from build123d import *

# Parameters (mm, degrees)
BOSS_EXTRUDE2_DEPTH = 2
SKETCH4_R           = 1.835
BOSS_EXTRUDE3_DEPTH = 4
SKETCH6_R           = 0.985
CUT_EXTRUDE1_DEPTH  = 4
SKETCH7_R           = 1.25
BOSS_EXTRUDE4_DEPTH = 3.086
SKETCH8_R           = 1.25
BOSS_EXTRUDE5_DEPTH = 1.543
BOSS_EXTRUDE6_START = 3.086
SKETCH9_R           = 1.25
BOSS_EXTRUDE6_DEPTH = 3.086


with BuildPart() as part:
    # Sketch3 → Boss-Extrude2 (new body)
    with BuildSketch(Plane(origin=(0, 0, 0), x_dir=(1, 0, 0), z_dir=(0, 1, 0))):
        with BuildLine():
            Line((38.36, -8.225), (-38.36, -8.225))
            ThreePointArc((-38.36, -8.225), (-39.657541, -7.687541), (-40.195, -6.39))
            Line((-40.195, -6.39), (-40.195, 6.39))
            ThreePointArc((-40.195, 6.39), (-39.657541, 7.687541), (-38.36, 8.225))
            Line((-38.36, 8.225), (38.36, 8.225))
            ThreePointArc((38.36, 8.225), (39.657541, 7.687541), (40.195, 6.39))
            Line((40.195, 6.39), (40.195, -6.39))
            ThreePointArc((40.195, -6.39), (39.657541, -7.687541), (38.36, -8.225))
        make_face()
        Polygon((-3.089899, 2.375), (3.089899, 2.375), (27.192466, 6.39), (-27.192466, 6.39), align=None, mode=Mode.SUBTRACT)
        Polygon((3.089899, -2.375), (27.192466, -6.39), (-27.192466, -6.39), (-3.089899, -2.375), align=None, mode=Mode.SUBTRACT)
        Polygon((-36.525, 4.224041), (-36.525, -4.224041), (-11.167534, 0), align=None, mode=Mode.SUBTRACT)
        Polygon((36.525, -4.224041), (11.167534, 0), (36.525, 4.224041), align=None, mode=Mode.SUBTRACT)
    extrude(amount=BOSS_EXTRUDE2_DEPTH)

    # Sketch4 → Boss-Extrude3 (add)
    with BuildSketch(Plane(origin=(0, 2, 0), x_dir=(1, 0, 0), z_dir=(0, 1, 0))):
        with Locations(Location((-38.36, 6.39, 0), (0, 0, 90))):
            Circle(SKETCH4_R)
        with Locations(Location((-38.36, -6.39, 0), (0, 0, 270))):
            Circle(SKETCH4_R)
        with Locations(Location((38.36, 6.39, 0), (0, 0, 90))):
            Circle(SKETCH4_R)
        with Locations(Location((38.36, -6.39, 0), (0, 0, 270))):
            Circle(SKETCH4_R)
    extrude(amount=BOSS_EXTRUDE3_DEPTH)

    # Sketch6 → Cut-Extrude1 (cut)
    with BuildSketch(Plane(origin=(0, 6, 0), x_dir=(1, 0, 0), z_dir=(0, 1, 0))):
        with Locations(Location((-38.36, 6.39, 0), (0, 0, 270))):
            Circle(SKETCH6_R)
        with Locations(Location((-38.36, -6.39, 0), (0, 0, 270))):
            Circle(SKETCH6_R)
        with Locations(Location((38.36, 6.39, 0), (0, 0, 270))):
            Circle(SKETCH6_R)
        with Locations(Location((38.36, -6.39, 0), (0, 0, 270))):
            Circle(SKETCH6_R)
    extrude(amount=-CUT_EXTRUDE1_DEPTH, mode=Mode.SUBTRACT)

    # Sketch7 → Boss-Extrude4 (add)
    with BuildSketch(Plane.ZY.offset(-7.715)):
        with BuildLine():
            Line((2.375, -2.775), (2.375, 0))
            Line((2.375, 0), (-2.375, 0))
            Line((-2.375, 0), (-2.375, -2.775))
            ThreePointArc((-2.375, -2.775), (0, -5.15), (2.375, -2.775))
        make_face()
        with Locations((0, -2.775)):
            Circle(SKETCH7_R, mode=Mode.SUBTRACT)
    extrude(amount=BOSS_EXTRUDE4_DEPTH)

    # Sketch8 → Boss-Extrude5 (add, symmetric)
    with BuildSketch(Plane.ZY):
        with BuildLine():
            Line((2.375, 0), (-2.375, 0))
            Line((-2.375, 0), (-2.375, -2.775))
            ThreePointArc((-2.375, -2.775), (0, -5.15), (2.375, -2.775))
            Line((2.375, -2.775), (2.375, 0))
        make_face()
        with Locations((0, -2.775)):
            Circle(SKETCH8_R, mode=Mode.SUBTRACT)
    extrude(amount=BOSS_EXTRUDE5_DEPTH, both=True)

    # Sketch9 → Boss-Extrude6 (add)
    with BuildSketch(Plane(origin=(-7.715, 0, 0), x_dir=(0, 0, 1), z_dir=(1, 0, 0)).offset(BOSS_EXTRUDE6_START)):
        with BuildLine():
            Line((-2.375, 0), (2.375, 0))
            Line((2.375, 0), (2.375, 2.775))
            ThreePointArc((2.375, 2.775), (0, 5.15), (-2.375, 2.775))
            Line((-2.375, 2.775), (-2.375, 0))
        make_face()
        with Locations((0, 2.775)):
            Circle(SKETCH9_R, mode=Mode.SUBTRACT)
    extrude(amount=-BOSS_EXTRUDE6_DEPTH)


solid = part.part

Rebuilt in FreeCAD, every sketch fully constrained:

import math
import FreeCAD as App
import Part
import Sketcher

V = App.Vector
Q = App.Units.Quantity

doc = App.newDocument("Part")
body = doc.addObject("PartDesign::Body", "Body")

sketch1 = doc.addObject("Sketcher::SketchObject", "Sketch")
body.addObject(sketch1)
sketch1.AttachmentSupport = (doc.XZ_Plane, [""])
sketch1.MapMode = "FlatFace"
sketch1.addGeometry(Part.LineSegment(V(-38.4, 8.2, 0), V(38.4, 8.2, 0)), False)
sketch1.addGeometry(Part.ArcOfCircle(Part.Circle(V(38.4, 6.4, 0), V(0, 0, 1), 1.8), math.radians(0), math.radians(90)), False)
sketch1.addGeometry(Part.LineSegment(V(40.2, 6.4, 0), V(40.2, -6.4, 0)), False)
sketch1.addGeometry(Part.ArcOfCircle(Part.Circle(V(38.4, -6.4, 0), V(0, 0, 1), 1.8), math.radians(-90), math.radians(0)), False)
sketch1.addGeometry(Part.LineSegment(V(38.4, -8.2, 0), V(-38.4, -8.2, 0)), False)
sketch1.addGeometry(Part.ArcOfCircle(Part.Circle(V(-38.4, -6.4, 0), V(0, 0, 1), 1.8), math.radians(180), math.radians(270)), False)
sketch1.addGeometry(Part.LineSegment(V(-40.2, -6.4, 0), V(-40.2, 6.4, 0)), False)
sketch1.addGeometry(Part.ArcOfCircle(Part.Circle(V(-38.4, 6.4, 0), V(0, 0, 1), 1.8), math.radians(90), math.radians(180)), False)
sketch1.addGeometry(Part.LineSegment(V(3.1, 2.4, 0), V(27.2, 6.4, 0)), False)
sketch1.addGeometry(Part.LineSegment(V(27.2, 6.4, 0), V(-27.2, 6.4, 0)), False)
sketch1.addGeometry(Part.LineSegment(V(-27.2, 6.4, 0), V(-3.1, 2.4, 0)), False)
sketch1.addGeometry(Part.LineSegment(V(-3.1, 2.4, 0), V(3.1, 2.4, 0)), False)
sketch1.addGeometry(Part.LineSegment(V(36.5, 4.2, 0), V(11.2, 0, 0)), False)
sketch1.addGeometry(Part.LineSegment(V(11.2, 0, 0), V(36.5, -4.2, 0)), False)
sketch1.addGeometry(Part.LineSegment(V(36.5, -4.2, 0), V(36.5, 4.2, 0)), False)
sketch1.addGeometry(Part.LineSegment(V(-36.5, -4.2, 0), V(-11.2, 0, 0)), False)
sketch1.addGeometry(Part.LineSegment(V(-11.2, 0, 0), V(-36.5, 4.2, 0)), False)
sketch1.addGeometry(Part.LineSegment(V(-36.5, 4.2, 0), V(-36.5, -4.2, 0)), False)
sketch1.addGeometry(Part.LineSegment(V(-3.1, -2.4, 0), V(-27.2, -6.4, 0)), False)
sketch1.addGeometry(Part.LineSegment(V(-27.2, -6.4, 0), V(27.2, -6.4, 0)), False)
sketch1.addGeometry(Part.LineSegment(V(27.2, -6.4, 0), V(3.1, -2.4, 0)), False)
sketch1.addGeometry(Part.LineSegment(V(3.1, -2.4, 0), V(-3.1, -2.4, 0)), False)
sketch1.addConstraint(Sketcher.Constraint("Tangent", 0, 2, 1, 2))
sketch1.addConstraint(Sketcher.Constraint("Tangent", 1, 1, 2, 1))
sketch1.addConstraint(Sketcher.Constraint("Tangent", 2, 2, 3, 2))
sketch1.addConstraint(Sketcher.Constraint("Tangent", 3, 1, 4, 1))
sketch1.addConstraint(Sketcher.Constraint("Tangent", 4, 2, 5, 2))
sketch1.addConstraint(Sketcher.Constraint("Tangent", 5, 1, 6, 1))
sketch1.addConstraint(Sketcher.Constraint("Tangent", 6, 2, 7, 2))
sketch1.addConstraint(Sketcher.Constraint("Tangent", 7, 1, 0, 1))
sketch1.addConstraint(Sketcher.Constraint("Coincident", 8, 2, 9, 1))
sketch1.addConstraint(Sketcher.Constraint("Coincident", 9, 2, 10, 1))
sketch1.addConstraint(Sketcher.Constraint("Coincident", 10, 2, 11, 1))
sketch1.addConstraint(Sketcher.Constraint("Coincident", 11, 2, 8, 1))
sketch1.addConstraint(Sketcher.Constraint("Coincident", 12, 2, 13, 1))
sketch1.addConstraint(Sketcher.Constraint("Coincident", 13, 2, 14, 1))
sketch1.addConstraint(Sketcher.Constraint("Coincident", 14, 2, 12, 1))
sketch1.addConstraint(Sketcher.Constraint("Coincident", 15, 2, 16, 1))
sketch1.addConstraint(Sketcher.Constraint("Coincident", 16, 2, 17, 1))
sketch1.addConstraint(Sketcher.Constraint("Coincident", 17, 2, 15, 1))
sketch1.addConstraint(Sketcher.Constraint("Coincident", 18, 2, 19, 1))
sketch1.addConstraint(Sketcher.Constraint("Coincident", 19, 2, 20, 1))
sketch1.addConstraint(Sketcher.Constraint("Coincident", 20, 2, 21, 1))
sketch1.addConstraint(Sketcher.Constraint("Coincident", 21, 2, 18, 1))
sketch1.addConstraint(Sketcher.Constraint("Horizontal", 0))
sketch1.addConstraint(Sketcher.Constraint("Vertical", 2))
sketch1.addConstraint(Sketcher.Constraint("Horizontal", 4))
sketch1.addConstraint(Sketcher.Constraint("Vertical", 6))
sketch1.addConstraint(Sketcher.Constraint("Horizontal", 9))
sketch1.addConstraint(Sketcher.Constraint("Horizontal", 11))
sketch1.addConstraint(Sketcher.Constraint("Vertical", 14))
sketch1.addConstraint(Sketcher.Constraint("Vertical", 17))
sketch1.addConstraint(Sketcher.Constraint("Horizontal", 19))
sketch1.addConstraint(Sketcher.Constraint("Horizontal", 21))
sketch1.addConstraint(Sketcher.Constraint("Equal", 1, 3))
sketch1.addConstraint(Sketcher.Constraint("Equal", 3, 5))
sketch1.addConstraint(Sketcher.Constraint("Equal", 5, 7))
sketch1.addConstraint(Sketcher.Constraint("Symmetric", 1, 3, 5, 3, -1, 1))
sketch1.addConstraint(Sketcher.Constraint("Symmetric", 12, 2, 15, 2, -1, 1))
sketch1.addConstraint(Sketcher.Constraint("Symmetric", 13, 2, 16, 2, -1, 1))
sketch1.addConstraint(Sketcher.Constraint("Symmetric", 8, 2, 18, 2, -1, 1))
sketch1.addConstraint(Sketcher.Constraint("Symmetric", 10, 2, 20, 2, -1, 1))
sketch1.addConstraint(Sketcher.Constraint("PointOnObject", 12, 2, -1))
sketch1.addConstraint(Sketcher.Constraint("Parallel", 8, 12))
sketch1.addConstraint(Sketcher.Constraint("Parallel", 10, 13))
sketch1.addConstraint(Sketcher.Constraint("Parallel", 12, 15))
sketch1.addConstraint(Sketcher.Constraint("Parallel", 15, 18))
sketch1.addConstraint(Sketcher.Constraint("Parallel", 16, 20))
sketch1.addConstraint(Sketcher.Constraint("Horizontal", 6, 2, 8, 2))
sketch1.addConstraint(Sketcher.Constraint("Horizontal", 14, 2, 16, 2))
sketch1.addConstraint(Sketcher.Constraint("Vertical", 9, 2, 18, 2))
sketch1.addConstraint(Sketcher.Constraint("Radius", 1, Q("1.835 mm")))
sketch1.addConstraint(Sketcher.Constraint("DistanceX", 0, 1, 0, 2, Q("76.72 mm")))
sketch1.addConstraint(Sketcher.Constraint("DistanceY", 2, 2, 2, 1, Q("12.78 mm")))
sketch1.addConstraint(Sketcher.Constraint("DistanceY", 10, 2, 7, 1, Q("5.85 mm")))
sketch1.addConstraint(Sketcher.Constraint("DistanceX", 13, 2, 2, 2, Q("3.67 mm")))
sketch1.addConstraint(Sketcher.Constraint("DistanceX", 10, 2, -1, 1, Q("3.089899 mm")))
sketch1.addConstraint(Sketcher.Constraint("Distance", 12, Q("25.706879 mm")))
sketch1.addConstraint(Sketcher.Constraint("DistanceX", 9, 2, 9, 1, Q("54.384932 mm")))
pad1 = doc.addObject("PartDesign::Pad", "Pad")
body.addObject(pad1)
pad1.Profile = sketch1
pad1.Length = 2
pad1.Reversed = True

sketch2 = doc.addObject("Sketcher::SketchObject", "Sketch001")
body.addObject(sketch2)
sketch2.AttachmentSupport = (doc.XZ_Plane, [""])
sketch2.MapMode = "FlatFace"
sketch2.AttachmentOffset = App.Placement(V(0, 0, -2), App.Rotation())
sketch2.addGeometry(Part.Circle(V(-38.4, -6.4, 0), V(0, 0, 1), 1.8), False)
sketch2.addGeometry(Part.Circle(V(-38.4, 6.4, 0), V(0, 0, 1), 1.8), False)
sketch2.addGeometry(Part.Circle(V(38.4, -6.4, 0), V(0, 0, 1), 1.8), False)
sketch2.addGeometry(Part.Circle(V(38.4, 6.4, 0), V(0, 0, 1), 1.8), False)
sketch2.addConstraint(Sketcher.Constraint("Equal", 0, 1))
sketch2.addConstraint(Sketcher.Constraint("Equal", 1, 2))
sketch2.addConstraint(Sketcher.Constraint("Equal", 2, 3))
sketch2.addConstraint(Sketcher.Constraint("Symmetric", 1, 3, 2, 3, -1, 1))
sketch2.addConstraint(Sketcher.Constraint("Symmetric", 0, 3, 3, 3, -1, 1))
sketch2.addConstraint(Sketcher.Constraint("Symmetric", 0, 3, 2, 3, -2))
sketch2.addConstraint(Sketcher.Constraint("Diameter", 0, Q("3.67 mm")))
sketch2.addConstraint(Sketcher.Constraint("DistanceX", 0, 3, -1, 1, Q("38.36 mm")))
sketch2.addConstraint(Sketcher.Constraint("DistanceY", 0, 3, -1, 1, Q("6.39 mm")))
pad2 = doc.addObject("PartDesign::Pad", "Pad001")
body.addObject(pad2)
pad2.Profile = sketch2
pad2.Length = 4
pad2.Reversed = True

sketch3 = doc.addObject("Sketcher::SketchObject", "Sketch002")
body.addObject(sketch3)
sketch3.AttachmentSupport = (doc.XZ_Plane, [""])
sketch3.MapMode = "FlatFace"
sketch3.AttachmentOffset = App.Placement(V(0, 0, -6), App.Rotation())
sketch3.addGeometry(Part.Circle(V(-38.4, -6.4, 0), V(0, 0, 1), 1), False)
sketch3.addGeometry(Part.Circle(V(-38.4, 6.4, 0), V(0, 0, 1), 1), False)
sketch3.addGeometry(Part.Circle(V(38.4, -6.4, 0), V(0, 0, 1), 1), False)
sketch3.addGeometry(Part.Circle(V(38.4, 6.4, 0), V(0, 0, 1), 1), False)
sketch3.addConstraint(Sketcher.Constraint("Equal", 0, 1))
sketch3.addConstraint(Sketcher.Constraint("Equal", 1, 2))
sketch3.addConstraint(Sketcher.Constraint("Equal", 2, 3))
sketch3.addConstraint(Sketcher.Constraint("Symmetric", 1, 3, 2, 3, -1, 1))
sketch3.addConstraint(Sketcher.Constraint("Symmetric", 0, 3, 3, 3, -1, 1))
sketch3.addConstraint(Sketcher.Constraint("Symmetric", 0, 3, 2, 3, -2))
sketch3.addConstraint(Sketcher.Constraint("Diameter", 0, Q("1.97 mm")))
sketch3.addConstraint(Sketcher.Constraint("DistanceX", 0, 3, -1, 1, Q("38.36 mm")))
sketch3.addConstraint(Sketcher.Constraint("DistanceY", 0, 3, -1, 1, Q("6.39 mm")))
pocket1 = doc.addObject("PartDesign::Pocket", "Pocket")
body.addObject(pocket1)
pocket1.Profile = sketch3
pocket1.Length = 4
pocket1.Reversed = True

sketch4 = doc.addObject("Sketcher::SketchObject", "Sketch003")
body.addObject(sketch4)
sketch4.AttachmentSupport = (doc.YZ_Plane, [""])
sketch4.MapMode = "FlatFace"
sketch4.AttachmentOffset = App.Placement(V(0, 0, 7.715), App.Rotation())
sketch4.addGeometry(Part.LineSegment(V(-2.8, 2.4, 0), V(0, 2.4, 0)), False)
sketch4.addGeometry(Part.LineSegment(V(0, 2.4, 0), V(0, -2.4, 0)), False)
sketch4.addGeometry(Part.LineSegment(V(0, -2.4, 0), V(-2.8, -2.4, 0)), False)
sketch4.addGeometry(Part.ArcOfCircle(Part.Circle(V(-2.8, 0, 0), V(0, 0, 1), 2.4), math.radians(90), math.radians(270)), False)
sketch4.addGeometry(Part.Circle(V(-2.8, 0, 0), V(0, 0, 1), 1.2), False)
sketch4.addConstraint(Sketcher.Constraint("Coincident", 0, 2, 1, 1))
sketch4.addConstraint(Sketcher.Constraint("Coincident", 1, 2, 2, 1))
sketch4.addConstraint(Sketcher.Constraint("Tangent", 2, 2, 3, 2))
sketch4.addConstraint(Sketcher.Constraint("Tangent", 3, 1, 0, 1))
sketch4.addConstraint(Sketcher.Constraint("Horizontal", 0))
sketch4.addConstraint(Sketcher.Constraint("Vertical", 1))
sketch4.addConstraint(Sketcher.Constraint("Horizontal", 2))
sketch4.addConstraint(Sketcher.Constraint("Coincident", 4, 3, 3, 3))
sketch4.addConstraint(Sketcher.Constraint("Symmetric", 0, 2, 1, 2, -1, 1))
sketch4.addConstraint(Sketcher.Constraint("Diameter", 4, Q("2.5 mm")))
sketch4.addConstraint(Sketcher.Constraint("Radius", 3, Q("2.375 mm")))
sketch4.addConstraint(Sketcher.Constraint("DistanceX", 0, 1, 0, 2, Q("2.775 mm")))
pad3 = doc.addObject("PartDesign::Pad", "Pad002")
body.addObject(pad3)
pad3.Profile = sketch4
pad3.Length = 3.086
pad3.Reversed = True

sketch5 = doc.addObject("Sketcher::SketchObject", "Sketch004")
body.addObject(sketch5)
sketch5.AttachmentSupport = (doc.YZ_Plane, [""])
sketch5.MapMode = "FlatFace"
sketch5.addGeometry(Part.LineSegment(V(0, 2.4, 0), V(0, -2.4, 0)), False)
sketch5.addGeometry(Part.LineSegment(V(0, -2.4, 0), V(-2.8, -2.4, 0)), False)
sketch5.addGeometry(Part.ArcOfCircle(Part.Circle(V(-2.8, 0, 0), V(0, 0, 1), 2.4), math.radians(90), math.radians(270)), False)
sketch5.addGeometry(Part.LineSegment(V(-2.8, 2.4, 0), V(0, 2.4, 0)), False)
sketch5.addGeometry(Part.Circle(V(-2.8, 0, 0), V(0, 0, 1), 1.2), False)
sketch5.addConstraint(Sketcher.Constraint("Coincident", 0, 2, 1, 1))
sketch5.addConstraint(Sketcher.Constraint("Tangent", 1, 2, 2, 2))
sketch5.addConstraint(Sketcher.Constraint("Tangent", 2, 1, 3, 1))
sketch5.addConstraint(Sketcher.Constraint("Coincident", 3, 2, 0, 1))
sketch5.addConstraint(Sketcher.Constraint("Vertical", 0))
sketch5.addConstraint(Sketcher.Constraint("Horizontal", 1))
sketch5.addConstraint(Sketcher.Constraint("Horizontal", 3))
sketch5.addConstraint(Sketcher.Constraint("Coincident", 4, 3, 2, 3))
sketch5.addConstraint(Sketcher.Constraint("Symmetric", 0, 2, 3, 2, -1, 1))
sketch5.addConstraint(Sketcher.Constraint("Diameter", 4, Q("2.5 mm")))
sketch5.addConstraint(Sketcher.Constraint("Radius", 2, Q("2.375 mm")))
sketch5.addConstraint(Sketcher.Constraint("DistanceX", 1, 2, 1, 1, Q("2.775 mm")))
pad4 = doc.addObject("PartDesign::Pad", "Pad003")
body.addObject(pad4)
pad4.Profile = sketch5
pad4.Length = 3.086
pad4.Midplane = True

sketch6 = doc.addObject("Sketcher::SketchObject", "Sketch005")
body.addObject(sketch6)
sketch6.AttachmentSupport = (doc.YZ_Plane, [""])
sketch6.MapMode = "FlatFace"
sketch6.AttachmentOffset = App.Placement(V(0, 0, -4.629), App.Rotation())
sketch6.addGeometry(Part.LineSegment(V(0, -2.4, 0), V(0, 2.4, 0)), False)
sketch6.addGeometry(Part.LineSegment(V(0, 2.4, 0), V(-2.8, 2.4, 0)), False)
sketch6.addGeometry(Part.ArcOfCircle(Part.Circle(V(-2.8, 0, 0), V(0, 0, 1), 2.4), math.radians(90), math.radians(270)), False)
sketch6.addGeometry(Part.LineSegment(V(-2.8, -2.4, 0), V(0, -2.4, 0)), False)
sketch6.addGeometry(Part.Circle(V(-2.8, 0, 0), V(0, 0, 1), 1.2), False)
sketch6.addConstraint(Sketcher.Constraint("Coincident", 0, 2, 1, 1))
sketch6.addConstraint(Sketcher.Constraint("Tangent", 1, 2, 2, 1))
sketch6.addConstraint(Sketcher.Constraint("Tangent", 2, 2, 3, 1))
sketch6.addConstraint(Sketcher.Constraint("Coincident", 3, 2, 0, 1))
sketch6.addConstraint(Sketcher.Constraint("Vertical", 0))
sketch6.addConstraint(Sketcher.Constraint("Horizontal", 1))
sketch6.addConstraint(Sketcher.Constraint("Horizontal", 3))
sketch6.addConstraint(Sketcher.Constraint("Coincident", 4, 3, 2, 3))
sketch6.addConstraint(Sketcher.Constraint("Symmetric", 0, 2, 3, 2, -1, 1))
sketch6.addConstraint(Sketcher.Constraint("Diameter", 4, Q("2.5 mm")))
sketch6.addConstraint(Sketcher.Constraint("Radius", 2, Q("2.375 mm")))
sketch6.addConstraint(Sketcher.Constraint("DistanceX", 1, 2, 1, 1, Q("2.775 mm")))
pad5 = doc.addObject("PartDesign::Pad", "Pad004")
body.addObject(pad5)
pad5.Profile = sketch6
pad5.Length = 3.086
pad5.Reversed = True

doc.recompute()
